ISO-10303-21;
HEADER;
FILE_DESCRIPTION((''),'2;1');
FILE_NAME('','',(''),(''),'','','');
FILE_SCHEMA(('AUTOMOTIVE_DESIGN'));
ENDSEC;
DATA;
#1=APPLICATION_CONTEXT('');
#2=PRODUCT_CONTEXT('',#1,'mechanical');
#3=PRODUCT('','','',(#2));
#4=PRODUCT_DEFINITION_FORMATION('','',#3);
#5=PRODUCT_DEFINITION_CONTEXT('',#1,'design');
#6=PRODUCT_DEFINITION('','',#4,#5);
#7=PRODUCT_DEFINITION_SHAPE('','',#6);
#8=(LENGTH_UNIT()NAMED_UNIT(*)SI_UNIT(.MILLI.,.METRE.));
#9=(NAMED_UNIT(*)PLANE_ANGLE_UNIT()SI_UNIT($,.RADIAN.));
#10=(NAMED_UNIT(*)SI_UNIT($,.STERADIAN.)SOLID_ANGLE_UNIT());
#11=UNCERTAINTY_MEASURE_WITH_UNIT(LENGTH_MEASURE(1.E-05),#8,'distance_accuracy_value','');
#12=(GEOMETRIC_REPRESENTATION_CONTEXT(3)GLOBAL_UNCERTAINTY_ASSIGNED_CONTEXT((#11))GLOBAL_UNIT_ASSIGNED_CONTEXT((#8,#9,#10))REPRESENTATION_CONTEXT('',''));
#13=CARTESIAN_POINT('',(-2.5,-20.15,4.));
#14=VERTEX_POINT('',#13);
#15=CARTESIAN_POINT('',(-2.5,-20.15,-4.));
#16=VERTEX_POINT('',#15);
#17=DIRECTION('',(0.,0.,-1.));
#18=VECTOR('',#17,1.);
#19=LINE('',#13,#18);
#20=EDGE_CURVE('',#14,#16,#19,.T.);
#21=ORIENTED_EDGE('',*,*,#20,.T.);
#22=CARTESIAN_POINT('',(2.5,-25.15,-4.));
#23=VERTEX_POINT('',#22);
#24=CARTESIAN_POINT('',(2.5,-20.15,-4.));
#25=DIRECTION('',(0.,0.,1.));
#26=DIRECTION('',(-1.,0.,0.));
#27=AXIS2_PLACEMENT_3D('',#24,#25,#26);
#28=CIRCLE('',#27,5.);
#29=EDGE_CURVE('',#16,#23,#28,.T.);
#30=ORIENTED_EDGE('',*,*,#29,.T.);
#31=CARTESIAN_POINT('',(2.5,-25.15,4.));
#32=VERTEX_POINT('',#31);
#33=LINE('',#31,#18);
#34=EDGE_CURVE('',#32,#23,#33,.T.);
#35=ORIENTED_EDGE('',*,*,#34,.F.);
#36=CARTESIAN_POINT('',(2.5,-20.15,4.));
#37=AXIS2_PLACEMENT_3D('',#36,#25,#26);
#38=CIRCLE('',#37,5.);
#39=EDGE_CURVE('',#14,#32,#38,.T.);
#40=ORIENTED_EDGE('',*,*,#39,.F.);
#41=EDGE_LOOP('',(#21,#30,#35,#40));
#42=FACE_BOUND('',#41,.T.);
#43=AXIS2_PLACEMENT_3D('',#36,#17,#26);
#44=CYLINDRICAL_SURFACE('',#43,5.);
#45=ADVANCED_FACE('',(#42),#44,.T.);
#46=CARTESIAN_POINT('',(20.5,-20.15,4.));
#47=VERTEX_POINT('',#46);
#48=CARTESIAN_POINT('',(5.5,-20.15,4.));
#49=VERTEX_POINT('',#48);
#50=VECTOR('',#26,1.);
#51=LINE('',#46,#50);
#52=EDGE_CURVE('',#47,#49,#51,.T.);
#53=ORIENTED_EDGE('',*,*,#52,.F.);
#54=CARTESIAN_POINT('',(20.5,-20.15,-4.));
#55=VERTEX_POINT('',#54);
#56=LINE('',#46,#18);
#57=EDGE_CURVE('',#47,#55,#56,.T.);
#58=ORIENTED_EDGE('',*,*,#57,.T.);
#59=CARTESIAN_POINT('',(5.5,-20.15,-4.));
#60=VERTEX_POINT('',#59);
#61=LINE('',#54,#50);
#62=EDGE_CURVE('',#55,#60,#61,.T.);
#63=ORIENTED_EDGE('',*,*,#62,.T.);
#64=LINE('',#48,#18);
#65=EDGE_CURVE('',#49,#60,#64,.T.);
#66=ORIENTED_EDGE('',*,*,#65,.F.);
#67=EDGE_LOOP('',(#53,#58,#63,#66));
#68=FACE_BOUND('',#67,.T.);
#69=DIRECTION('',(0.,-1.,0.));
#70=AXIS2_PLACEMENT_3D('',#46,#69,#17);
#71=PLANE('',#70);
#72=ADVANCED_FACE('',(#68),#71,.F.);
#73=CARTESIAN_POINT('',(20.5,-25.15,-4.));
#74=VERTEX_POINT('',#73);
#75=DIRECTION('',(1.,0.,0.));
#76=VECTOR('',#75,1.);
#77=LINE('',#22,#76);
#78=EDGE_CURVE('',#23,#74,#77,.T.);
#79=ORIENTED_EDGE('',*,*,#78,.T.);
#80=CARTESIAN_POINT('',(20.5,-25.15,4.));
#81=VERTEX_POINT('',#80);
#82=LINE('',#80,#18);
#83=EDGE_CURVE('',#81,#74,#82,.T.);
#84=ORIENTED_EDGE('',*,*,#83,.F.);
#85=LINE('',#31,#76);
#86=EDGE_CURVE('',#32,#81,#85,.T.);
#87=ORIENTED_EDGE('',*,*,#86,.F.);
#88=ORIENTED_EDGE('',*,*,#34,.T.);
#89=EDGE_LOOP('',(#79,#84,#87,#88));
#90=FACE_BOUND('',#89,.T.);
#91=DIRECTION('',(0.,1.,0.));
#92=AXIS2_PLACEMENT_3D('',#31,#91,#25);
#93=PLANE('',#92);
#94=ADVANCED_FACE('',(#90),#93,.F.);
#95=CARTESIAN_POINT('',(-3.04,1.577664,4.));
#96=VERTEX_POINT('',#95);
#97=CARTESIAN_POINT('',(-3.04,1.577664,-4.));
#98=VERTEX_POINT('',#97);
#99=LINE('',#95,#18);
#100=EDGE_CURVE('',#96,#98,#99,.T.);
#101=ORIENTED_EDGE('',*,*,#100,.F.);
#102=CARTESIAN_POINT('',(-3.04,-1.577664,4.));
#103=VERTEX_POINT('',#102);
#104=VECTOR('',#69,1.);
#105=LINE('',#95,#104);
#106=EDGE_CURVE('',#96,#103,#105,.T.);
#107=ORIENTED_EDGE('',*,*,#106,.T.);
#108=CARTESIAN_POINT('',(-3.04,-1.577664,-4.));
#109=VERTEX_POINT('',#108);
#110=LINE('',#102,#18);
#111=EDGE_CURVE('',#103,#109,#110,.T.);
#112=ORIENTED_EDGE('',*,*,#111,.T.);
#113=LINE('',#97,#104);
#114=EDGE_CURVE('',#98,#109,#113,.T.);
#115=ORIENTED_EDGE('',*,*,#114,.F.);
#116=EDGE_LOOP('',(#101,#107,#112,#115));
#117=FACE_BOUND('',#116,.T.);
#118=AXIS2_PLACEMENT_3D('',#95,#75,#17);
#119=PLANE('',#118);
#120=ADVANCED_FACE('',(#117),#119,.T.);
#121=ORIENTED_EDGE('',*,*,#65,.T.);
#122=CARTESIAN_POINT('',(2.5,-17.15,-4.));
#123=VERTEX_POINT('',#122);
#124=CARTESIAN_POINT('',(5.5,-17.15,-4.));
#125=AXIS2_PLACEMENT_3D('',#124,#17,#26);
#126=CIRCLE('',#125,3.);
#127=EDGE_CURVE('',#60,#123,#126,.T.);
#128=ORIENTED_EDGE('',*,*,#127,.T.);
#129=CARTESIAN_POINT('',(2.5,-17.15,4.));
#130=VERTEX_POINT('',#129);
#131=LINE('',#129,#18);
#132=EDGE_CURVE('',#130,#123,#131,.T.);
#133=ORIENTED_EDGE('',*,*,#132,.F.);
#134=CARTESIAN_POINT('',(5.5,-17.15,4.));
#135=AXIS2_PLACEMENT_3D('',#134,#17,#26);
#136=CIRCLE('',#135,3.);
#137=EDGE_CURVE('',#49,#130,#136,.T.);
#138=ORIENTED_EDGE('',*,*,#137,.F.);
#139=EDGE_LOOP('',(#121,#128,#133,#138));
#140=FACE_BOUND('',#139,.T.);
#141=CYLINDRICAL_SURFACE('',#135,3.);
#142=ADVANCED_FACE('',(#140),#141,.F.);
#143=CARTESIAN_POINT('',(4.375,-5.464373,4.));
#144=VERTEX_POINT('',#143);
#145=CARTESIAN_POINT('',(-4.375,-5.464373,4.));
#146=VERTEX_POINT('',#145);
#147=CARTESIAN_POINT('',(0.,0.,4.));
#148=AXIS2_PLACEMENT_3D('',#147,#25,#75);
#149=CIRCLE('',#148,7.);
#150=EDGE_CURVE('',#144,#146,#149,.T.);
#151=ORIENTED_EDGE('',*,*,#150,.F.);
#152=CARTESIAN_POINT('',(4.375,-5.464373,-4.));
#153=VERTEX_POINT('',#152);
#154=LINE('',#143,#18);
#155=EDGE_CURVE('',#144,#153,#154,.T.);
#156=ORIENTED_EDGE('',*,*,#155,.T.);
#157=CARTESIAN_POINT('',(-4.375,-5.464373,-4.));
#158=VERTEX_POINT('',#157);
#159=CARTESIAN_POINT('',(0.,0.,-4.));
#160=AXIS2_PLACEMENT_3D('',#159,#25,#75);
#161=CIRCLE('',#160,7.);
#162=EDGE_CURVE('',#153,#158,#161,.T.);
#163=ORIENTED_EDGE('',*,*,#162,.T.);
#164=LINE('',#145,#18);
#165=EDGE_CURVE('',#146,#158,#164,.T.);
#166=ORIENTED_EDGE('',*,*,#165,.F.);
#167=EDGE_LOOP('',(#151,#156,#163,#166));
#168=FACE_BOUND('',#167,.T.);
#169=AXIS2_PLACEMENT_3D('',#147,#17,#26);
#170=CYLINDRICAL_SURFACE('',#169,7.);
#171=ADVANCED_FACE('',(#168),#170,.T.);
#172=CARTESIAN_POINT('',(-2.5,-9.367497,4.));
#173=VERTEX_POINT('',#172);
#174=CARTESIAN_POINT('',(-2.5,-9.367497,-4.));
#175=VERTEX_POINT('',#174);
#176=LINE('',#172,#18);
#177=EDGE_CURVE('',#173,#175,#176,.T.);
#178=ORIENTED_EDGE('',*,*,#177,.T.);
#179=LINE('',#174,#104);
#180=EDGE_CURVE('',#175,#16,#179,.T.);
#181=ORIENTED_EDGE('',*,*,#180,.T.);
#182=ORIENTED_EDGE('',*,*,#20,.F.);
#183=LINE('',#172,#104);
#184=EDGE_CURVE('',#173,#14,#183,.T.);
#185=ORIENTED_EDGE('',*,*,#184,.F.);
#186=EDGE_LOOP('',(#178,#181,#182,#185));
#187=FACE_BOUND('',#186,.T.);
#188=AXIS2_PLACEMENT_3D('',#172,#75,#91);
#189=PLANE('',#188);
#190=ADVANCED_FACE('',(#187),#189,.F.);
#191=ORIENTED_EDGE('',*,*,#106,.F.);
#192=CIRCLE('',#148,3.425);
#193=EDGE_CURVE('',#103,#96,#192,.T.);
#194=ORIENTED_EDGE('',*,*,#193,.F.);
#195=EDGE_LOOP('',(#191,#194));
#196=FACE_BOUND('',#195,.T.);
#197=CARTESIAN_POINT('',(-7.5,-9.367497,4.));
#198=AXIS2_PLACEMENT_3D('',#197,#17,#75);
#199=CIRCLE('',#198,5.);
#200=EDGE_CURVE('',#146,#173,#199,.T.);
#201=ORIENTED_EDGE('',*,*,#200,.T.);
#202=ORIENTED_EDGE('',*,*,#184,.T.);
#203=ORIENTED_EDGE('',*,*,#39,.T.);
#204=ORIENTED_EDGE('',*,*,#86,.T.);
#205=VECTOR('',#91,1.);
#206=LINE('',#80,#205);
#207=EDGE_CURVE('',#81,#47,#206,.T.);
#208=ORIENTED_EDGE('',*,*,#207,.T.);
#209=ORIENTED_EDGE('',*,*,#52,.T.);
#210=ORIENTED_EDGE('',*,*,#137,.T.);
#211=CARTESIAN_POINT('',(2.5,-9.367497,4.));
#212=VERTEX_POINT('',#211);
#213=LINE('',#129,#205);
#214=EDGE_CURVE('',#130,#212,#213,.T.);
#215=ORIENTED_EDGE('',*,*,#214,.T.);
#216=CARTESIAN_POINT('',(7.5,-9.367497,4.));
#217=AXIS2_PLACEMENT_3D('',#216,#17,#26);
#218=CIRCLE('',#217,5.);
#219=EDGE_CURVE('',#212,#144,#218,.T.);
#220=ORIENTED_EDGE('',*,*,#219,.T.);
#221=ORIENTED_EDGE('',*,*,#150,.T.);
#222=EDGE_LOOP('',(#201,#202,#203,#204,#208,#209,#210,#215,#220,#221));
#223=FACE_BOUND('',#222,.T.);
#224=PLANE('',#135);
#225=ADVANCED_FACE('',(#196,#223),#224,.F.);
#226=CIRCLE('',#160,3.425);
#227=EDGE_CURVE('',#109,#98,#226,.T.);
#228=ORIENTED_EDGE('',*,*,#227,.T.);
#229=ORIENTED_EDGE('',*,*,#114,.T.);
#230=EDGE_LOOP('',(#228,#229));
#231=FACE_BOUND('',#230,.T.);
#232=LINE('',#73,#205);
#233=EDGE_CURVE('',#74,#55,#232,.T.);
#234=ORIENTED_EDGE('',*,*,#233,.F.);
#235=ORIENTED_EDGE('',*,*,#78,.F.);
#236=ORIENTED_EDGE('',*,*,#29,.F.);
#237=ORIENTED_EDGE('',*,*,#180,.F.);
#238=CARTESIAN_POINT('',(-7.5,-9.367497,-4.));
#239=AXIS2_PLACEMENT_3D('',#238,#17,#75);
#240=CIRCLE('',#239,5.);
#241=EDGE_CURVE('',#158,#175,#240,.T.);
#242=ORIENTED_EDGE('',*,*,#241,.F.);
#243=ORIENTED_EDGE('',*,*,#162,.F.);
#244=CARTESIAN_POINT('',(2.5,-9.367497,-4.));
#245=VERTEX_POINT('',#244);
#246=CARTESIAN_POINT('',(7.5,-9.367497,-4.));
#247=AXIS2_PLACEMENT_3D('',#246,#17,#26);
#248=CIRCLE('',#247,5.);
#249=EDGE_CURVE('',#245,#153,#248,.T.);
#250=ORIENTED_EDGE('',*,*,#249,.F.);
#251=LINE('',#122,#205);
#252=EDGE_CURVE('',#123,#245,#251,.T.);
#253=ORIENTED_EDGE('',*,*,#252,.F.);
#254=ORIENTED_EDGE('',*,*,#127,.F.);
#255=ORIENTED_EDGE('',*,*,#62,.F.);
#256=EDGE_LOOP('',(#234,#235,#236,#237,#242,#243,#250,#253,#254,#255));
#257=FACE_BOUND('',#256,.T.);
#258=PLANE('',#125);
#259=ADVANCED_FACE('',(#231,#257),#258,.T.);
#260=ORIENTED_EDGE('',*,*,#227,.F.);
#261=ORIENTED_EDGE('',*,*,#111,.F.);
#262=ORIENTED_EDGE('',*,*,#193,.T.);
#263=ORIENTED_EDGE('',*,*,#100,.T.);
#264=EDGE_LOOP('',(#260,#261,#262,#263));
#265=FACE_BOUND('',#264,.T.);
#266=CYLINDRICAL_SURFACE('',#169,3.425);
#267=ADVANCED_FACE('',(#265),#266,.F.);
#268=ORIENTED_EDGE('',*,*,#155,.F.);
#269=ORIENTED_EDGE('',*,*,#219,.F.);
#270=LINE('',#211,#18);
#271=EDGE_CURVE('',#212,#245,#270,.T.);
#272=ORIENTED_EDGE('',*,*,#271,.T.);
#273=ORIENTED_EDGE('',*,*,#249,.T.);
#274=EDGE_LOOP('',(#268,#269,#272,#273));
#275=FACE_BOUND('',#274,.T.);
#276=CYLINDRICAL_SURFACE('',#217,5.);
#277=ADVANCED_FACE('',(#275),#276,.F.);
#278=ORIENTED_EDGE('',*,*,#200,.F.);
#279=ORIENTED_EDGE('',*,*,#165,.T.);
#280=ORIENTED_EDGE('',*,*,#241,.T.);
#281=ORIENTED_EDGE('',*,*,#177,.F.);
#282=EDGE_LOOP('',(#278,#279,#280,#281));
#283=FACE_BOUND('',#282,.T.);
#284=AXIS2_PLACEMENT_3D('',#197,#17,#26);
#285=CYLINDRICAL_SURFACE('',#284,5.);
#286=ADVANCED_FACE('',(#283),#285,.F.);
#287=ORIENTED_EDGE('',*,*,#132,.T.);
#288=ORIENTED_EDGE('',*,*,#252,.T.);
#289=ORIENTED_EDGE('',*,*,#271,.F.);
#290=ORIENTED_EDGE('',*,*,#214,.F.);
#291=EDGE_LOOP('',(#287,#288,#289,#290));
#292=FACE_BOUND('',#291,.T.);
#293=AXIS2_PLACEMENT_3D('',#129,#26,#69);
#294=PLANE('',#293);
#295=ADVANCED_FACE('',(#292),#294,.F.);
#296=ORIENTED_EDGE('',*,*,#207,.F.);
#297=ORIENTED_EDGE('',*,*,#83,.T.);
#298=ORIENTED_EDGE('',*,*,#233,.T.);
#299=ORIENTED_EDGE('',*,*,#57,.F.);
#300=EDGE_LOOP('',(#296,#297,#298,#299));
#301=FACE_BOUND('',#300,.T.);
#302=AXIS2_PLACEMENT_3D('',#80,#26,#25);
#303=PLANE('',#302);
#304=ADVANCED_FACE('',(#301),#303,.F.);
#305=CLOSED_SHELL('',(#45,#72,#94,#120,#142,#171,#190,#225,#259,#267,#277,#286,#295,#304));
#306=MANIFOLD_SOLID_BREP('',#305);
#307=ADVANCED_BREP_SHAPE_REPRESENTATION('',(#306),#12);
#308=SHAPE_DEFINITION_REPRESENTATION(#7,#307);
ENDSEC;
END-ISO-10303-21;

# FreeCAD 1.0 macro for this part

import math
import FreeCAD as App
import Part
import Sketcher

V = App.Vector
Q = App.Units.Quantity

doc = App.newDocument("Part")
body = doc.addObject("PartDesign::Body", "Body")

sketch1 = doc.addObject("Sketcher::SketchObject", "Sketch")
body.addObject(sketch1)
sketch1.AttachmentSupport = (doc.XY_Plane, [""])
sketch1.MapMode = "FlatFace"
sketch1.addGeometry(Part.LineSegment(V(-2.5, -9.4, 0), V(-2.5, -20.1, 0)), False)
sketch1.addGeometry(Part.ArcOfCircle(Part.Circle(V(2.5, -20.1, 0), V(0, 0, 1), 5), math.radians(180), math.radians(270)), False)
sketch1.addGeometry(Part.LineSegment(V(2.5, -25.1, 0), V(20.5, -25.1, 0)), False)
sketch1.addGeometry(Part.LineSegment(V(20.5, -25.1, 0), V(20.5, -20.1, 0)), False)
sketch1.addGeometry(Part.LineSegment(V(20.5, -20.1, 0), V(5.5, -20.1, 0)), False)
sketch1.addGeometry(Part.ArcOfCircle(Part.Circle(V(5.5, -17.2, 0), V(0, 0, 1), 3), math.radians(180), math.radians(270)), False)
sketch1.addGeometry(Part.LineSegment(V(2.5, -17.1, 0), V(2.5, -9.4, 0)), False)
sketch1.addGeometry(Part.ArcOfCircle(Part.Circle(V(7.5, -9.4, 0), V(0, 0, 1), 5), math.radians(129), math.radians(180)), False)
sketch1.addGeometry(Part.ArcOfCircle(Part.Circle(V(0, 0, 0), V(0, 0, 1), 7), math.radians(-51), math.radians(231)), False)
sketch1.addGeometry(Part.ArcOfCircle(Part.Circle(V(-7.5, -9.4, 0), V(0, 0, 1), 5), math.radians(0), math.radians(51)), False)
sketch1.addGeometry(Part.LineSegment(V(-3, -1.6, 0), V(-3, 1.6, 0)), False)
sketch1.addGeometry(Part.ArcOfCircle(Part.Circle(V(0, 0, 0), V(0, 0, 1), 3.4), math.radians(-153), math.radians(153)), False)
sketch1.addConstraint(Sketcher.Constraint("Tangent", 0, 2, 1, 1))
sketch1.addConstraint(Sketcher.Constraint("Tangent", 1, 2, 2, 1))
sketch1.addConstraint(Sketcher.Constraint("Coincident", 2, 2, 3, 1))
sketch1.addConstraint(Sketcher.Constraint("Coincident", 3, 2, 4, 1))
sketch1.addConstraint(Sketcher.Constraint("Tangent", 4, 2, 5, 2))
sketch1.addConstraint(Sketcher.Constraint("Tangent", 5, 1, 6, 1))
sketch1.addConstraint(Sketcher.Constraint("Tangent", 6, 2, 7, 2))
sketch1.addConstraint(Sketcher.Constraint("Tangent", 7, 1, 8, 1))
sketch1.addConstraint(Sketcher.Constraint("Tangent", 8, 2, 9, 2))
sketch1.addConstraint(Sketcher.Constraint("Tangent", 9, 1, 0, 1))
sketch1.addConstraint(Sketcher.Constraint("Coincident", 10, 1, 11, 1))
sketch1.addConstraint(Sketcher.Constraint("Coincident", 11, 2, 10, 2))
sketch1.addConstraint(Sketcher.Constraint("Vertical", 0))
sketch1.addConstraint(Sketcher.Constraint("Horizontal", 2))
sketch1.addConstraint(Sketcher.Constraint("Vertical", 3))
sketch1.addConstraint(Sketcher.Constraint("Horizontal", 4))
sketch1.addConstraint(Sketcher.Constraint("Vertical", 6))
sketch1.addConstraint(Sketcher.Constraint("Vertical", 10))
sketch1.addConstraint(Sketcher.Constraint("Coincident", 8, 3, -1, 1))
sketch1.addConstraint(Sketcher.Constraint("Coincident", 11, 3, -1, 1))
sketch1.addConstraint(Sketcher.Constraint("Equal", 1, 7))
sketch1.addConstraint(Sketcher.Constraint("Equal", 7, 9))
sketch1.addConstraint(Sketcher.Constraint("Horizontal", 7, 3, 9, 3))
sketch1.addConstraint(Sketcher.Constraint("Horizontal", 0, 2, 3, 2))
sketch1.addConstraint(Sketcher.Constraint("Vertical", 1, 2, 5, 1))
sketch1.addConstraint(Sketcher.Constraint("Radius", 1, Q("5 mm")))
sketch1.addConstraint(Sketcher.Constraint("Radius", 5, Q("3 mm")))
sketch1.addConstraint(Sketcher.Constraint("Radius", 8, Q("7 mm")))
sketch1.addConstraint(Sketcher.Constraint("DistanceX", 2, 1, 2, 2, Q("18 mm")))
sketch1.addConstraint(Sketcher.Constraint("Radius", 11, Q("3.425 mm")))
sketch1.addConstraint(Sketcher.Constraint("DistanceY", 1, 3, -1, 1, Q("20.15 mm")))
sketch1.addConstraint(Sketcher.Constraint("DistanceX", 10, 1, -1, 1, Q("3.04 mm")))
pad1 = doc.addObject("PartDesign::Pad", "Pad")
body.addObject(pad1)
pad1.Profile = sketch1
pad1.Length = 8
pad1.Midplane = True

doc.recompute()
